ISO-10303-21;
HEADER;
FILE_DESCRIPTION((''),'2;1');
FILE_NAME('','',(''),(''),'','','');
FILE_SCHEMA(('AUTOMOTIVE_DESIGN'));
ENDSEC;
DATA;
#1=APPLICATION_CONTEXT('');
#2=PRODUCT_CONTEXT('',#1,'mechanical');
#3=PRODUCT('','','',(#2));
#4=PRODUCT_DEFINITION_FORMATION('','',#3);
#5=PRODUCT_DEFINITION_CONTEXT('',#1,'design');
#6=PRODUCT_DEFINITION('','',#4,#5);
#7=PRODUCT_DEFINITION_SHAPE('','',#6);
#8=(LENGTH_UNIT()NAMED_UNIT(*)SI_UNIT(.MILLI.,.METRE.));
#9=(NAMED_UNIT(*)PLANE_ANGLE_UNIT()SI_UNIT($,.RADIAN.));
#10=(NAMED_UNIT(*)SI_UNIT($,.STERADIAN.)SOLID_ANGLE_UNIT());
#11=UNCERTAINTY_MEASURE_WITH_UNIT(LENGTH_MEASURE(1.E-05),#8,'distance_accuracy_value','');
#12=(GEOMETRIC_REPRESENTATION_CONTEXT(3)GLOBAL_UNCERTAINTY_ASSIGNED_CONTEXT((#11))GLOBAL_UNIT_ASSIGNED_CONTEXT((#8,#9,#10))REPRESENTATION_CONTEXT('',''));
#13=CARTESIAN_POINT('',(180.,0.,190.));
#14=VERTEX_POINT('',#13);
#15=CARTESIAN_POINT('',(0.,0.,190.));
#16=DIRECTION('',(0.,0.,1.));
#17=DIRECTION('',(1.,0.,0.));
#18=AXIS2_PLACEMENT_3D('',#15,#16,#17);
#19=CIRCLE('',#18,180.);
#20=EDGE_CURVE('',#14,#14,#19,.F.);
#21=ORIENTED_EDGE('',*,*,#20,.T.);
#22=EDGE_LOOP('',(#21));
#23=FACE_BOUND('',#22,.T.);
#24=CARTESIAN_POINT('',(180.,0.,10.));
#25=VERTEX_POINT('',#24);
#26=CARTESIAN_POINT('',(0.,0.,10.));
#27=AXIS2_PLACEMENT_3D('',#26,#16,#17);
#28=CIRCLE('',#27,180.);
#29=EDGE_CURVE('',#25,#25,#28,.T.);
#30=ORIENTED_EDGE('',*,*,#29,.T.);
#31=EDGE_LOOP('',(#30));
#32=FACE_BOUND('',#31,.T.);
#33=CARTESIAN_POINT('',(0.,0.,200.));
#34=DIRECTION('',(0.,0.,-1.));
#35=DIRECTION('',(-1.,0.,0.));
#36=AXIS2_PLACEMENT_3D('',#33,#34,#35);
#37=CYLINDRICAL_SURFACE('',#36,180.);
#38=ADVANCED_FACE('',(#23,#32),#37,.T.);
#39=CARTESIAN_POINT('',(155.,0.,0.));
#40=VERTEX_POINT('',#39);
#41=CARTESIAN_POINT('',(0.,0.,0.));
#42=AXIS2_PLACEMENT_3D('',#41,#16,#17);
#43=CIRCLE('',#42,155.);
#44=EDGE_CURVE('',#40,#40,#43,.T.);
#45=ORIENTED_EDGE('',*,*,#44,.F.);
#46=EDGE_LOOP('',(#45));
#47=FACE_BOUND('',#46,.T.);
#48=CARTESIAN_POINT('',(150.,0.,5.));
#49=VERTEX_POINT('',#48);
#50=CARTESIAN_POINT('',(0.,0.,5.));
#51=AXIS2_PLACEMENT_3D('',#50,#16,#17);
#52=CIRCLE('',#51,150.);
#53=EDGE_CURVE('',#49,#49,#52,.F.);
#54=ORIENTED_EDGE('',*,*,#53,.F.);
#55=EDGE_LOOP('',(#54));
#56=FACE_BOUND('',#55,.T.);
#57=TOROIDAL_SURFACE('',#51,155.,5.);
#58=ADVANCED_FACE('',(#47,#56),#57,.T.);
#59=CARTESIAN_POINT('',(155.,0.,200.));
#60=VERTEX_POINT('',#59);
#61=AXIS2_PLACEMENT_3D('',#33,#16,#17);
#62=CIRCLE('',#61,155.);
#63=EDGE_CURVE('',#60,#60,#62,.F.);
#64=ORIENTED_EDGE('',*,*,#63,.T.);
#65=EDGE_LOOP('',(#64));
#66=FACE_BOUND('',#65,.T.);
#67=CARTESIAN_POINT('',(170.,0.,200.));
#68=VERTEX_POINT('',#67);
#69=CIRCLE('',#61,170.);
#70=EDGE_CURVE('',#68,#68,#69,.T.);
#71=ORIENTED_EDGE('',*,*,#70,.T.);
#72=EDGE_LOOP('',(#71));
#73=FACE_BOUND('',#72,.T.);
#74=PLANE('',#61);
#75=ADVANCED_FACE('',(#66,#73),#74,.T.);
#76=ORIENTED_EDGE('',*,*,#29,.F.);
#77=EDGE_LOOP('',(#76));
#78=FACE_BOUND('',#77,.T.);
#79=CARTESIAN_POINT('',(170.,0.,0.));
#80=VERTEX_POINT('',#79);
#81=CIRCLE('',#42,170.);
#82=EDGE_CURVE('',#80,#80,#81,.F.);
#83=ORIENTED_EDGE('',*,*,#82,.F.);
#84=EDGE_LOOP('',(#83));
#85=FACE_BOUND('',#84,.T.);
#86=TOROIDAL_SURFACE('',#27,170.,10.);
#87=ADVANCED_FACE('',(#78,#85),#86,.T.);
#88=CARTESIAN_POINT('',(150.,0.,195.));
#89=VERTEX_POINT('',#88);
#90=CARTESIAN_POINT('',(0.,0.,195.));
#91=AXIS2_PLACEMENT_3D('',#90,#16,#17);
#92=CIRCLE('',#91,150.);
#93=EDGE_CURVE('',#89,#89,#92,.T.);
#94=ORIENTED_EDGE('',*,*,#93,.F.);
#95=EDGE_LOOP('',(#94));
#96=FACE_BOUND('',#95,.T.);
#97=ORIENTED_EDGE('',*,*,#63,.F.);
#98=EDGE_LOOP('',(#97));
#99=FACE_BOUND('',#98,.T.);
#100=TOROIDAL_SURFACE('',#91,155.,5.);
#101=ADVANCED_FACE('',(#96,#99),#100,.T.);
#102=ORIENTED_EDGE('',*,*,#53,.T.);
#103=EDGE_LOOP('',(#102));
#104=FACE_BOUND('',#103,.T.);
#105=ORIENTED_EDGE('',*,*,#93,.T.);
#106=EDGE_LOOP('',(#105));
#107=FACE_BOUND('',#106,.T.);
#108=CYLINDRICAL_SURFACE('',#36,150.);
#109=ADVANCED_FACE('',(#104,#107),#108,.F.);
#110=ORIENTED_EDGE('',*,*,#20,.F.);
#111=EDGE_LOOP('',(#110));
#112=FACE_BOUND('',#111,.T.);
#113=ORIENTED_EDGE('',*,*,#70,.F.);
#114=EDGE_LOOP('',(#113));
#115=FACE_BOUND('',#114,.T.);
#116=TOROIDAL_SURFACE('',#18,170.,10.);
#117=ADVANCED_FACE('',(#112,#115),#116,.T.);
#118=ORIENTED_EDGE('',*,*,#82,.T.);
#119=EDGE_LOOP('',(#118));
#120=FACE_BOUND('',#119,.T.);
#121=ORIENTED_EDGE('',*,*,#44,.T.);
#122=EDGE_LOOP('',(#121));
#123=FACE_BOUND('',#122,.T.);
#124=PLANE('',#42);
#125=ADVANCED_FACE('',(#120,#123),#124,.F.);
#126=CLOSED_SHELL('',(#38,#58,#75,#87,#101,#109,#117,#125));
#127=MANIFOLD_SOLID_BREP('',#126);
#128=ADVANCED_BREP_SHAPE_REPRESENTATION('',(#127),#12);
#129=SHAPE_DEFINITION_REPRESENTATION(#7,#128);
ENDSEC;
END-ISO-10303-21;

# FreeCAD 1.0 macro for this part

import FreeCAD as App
import Part
import Sketcher
from FreeCAD import Vector
Q = App.Units.Quantity


def edges_at(feature, points):
    """Names of the edges that pass closest to the given points."""
    edges = feature.Shape.Edges
    near = lambda p: min(range(len(edges)), key=lambda i: edges[i].distToShape(Part.Vertex(*p))[0])
    return sorted({f"Edge{near(p) + 1}" for p in points})

doc = App.newDocument("Part")
body = doc.addObject("PartDesign::Body", "Body")

sketch1 = body.newObject("Sketcher::SketchObject", "Sketch")
sketch1.AttachmentSupport = (doc.getObject("XY_Plane"), [""])
sketch1.MapMode = "FlatFace"
sketch1.addGeometry(Part.Circle(Vector(0, 0, 0), Vector(0, 0, 1), 180), False)
sketch1.addConstraint([
    Sketcher.Constraint("Coincident", 0, 3, -1, 1),
    Sketcher.Constraint("Diameter", 0, Q("360 mm")),
])
pad1 = body.newObject("PartDesign::Pad", "Pad")
pad1.Profile = sketch1
pad1.Length = 200
doc.recompute()

fillet = body.newObject("PartDesign::Fillet", "Fillet")
fillet.Base = (pad1, edges_at(pad1, [(-180, 0, 0), (-180, 0, 200)]))
fillet.Radius = 10

sketch2 = body.newObject("Sketcher::SketchObject", "Sketch001")
sketch2.AttachmentSupport = (doc.getObject("XY_Plane"), [""])
sketch2.MapMode = "FlatFace"
sketch2.addGeometry(Part.Circle(Vector(0, 0, 0), Vector(0, 0, 1), 150), False)
sketch2.addConstraint([
    Sketcher.Constraint("Coincident", 0, 3, -1, 1),
    Sketcher.Constraint("Diameter", 0, Q("300 mm")),
])
pocket1 = body.newObject("PartDesign::Pocket", "Pocket")
pocket1.Profile = sketch2
pocket1.Length = 200
pocket1.Reversed = True
doc.recompute()

fillet2 = body.newObject("PartDesign::Fillet", "Fillet001")
fillet2.Base = (pocket1, edges_at(pocket1, [(150, 0, 200), (150, 0, 0)]))
fillet2.Radius = 5

doc.recompute()
